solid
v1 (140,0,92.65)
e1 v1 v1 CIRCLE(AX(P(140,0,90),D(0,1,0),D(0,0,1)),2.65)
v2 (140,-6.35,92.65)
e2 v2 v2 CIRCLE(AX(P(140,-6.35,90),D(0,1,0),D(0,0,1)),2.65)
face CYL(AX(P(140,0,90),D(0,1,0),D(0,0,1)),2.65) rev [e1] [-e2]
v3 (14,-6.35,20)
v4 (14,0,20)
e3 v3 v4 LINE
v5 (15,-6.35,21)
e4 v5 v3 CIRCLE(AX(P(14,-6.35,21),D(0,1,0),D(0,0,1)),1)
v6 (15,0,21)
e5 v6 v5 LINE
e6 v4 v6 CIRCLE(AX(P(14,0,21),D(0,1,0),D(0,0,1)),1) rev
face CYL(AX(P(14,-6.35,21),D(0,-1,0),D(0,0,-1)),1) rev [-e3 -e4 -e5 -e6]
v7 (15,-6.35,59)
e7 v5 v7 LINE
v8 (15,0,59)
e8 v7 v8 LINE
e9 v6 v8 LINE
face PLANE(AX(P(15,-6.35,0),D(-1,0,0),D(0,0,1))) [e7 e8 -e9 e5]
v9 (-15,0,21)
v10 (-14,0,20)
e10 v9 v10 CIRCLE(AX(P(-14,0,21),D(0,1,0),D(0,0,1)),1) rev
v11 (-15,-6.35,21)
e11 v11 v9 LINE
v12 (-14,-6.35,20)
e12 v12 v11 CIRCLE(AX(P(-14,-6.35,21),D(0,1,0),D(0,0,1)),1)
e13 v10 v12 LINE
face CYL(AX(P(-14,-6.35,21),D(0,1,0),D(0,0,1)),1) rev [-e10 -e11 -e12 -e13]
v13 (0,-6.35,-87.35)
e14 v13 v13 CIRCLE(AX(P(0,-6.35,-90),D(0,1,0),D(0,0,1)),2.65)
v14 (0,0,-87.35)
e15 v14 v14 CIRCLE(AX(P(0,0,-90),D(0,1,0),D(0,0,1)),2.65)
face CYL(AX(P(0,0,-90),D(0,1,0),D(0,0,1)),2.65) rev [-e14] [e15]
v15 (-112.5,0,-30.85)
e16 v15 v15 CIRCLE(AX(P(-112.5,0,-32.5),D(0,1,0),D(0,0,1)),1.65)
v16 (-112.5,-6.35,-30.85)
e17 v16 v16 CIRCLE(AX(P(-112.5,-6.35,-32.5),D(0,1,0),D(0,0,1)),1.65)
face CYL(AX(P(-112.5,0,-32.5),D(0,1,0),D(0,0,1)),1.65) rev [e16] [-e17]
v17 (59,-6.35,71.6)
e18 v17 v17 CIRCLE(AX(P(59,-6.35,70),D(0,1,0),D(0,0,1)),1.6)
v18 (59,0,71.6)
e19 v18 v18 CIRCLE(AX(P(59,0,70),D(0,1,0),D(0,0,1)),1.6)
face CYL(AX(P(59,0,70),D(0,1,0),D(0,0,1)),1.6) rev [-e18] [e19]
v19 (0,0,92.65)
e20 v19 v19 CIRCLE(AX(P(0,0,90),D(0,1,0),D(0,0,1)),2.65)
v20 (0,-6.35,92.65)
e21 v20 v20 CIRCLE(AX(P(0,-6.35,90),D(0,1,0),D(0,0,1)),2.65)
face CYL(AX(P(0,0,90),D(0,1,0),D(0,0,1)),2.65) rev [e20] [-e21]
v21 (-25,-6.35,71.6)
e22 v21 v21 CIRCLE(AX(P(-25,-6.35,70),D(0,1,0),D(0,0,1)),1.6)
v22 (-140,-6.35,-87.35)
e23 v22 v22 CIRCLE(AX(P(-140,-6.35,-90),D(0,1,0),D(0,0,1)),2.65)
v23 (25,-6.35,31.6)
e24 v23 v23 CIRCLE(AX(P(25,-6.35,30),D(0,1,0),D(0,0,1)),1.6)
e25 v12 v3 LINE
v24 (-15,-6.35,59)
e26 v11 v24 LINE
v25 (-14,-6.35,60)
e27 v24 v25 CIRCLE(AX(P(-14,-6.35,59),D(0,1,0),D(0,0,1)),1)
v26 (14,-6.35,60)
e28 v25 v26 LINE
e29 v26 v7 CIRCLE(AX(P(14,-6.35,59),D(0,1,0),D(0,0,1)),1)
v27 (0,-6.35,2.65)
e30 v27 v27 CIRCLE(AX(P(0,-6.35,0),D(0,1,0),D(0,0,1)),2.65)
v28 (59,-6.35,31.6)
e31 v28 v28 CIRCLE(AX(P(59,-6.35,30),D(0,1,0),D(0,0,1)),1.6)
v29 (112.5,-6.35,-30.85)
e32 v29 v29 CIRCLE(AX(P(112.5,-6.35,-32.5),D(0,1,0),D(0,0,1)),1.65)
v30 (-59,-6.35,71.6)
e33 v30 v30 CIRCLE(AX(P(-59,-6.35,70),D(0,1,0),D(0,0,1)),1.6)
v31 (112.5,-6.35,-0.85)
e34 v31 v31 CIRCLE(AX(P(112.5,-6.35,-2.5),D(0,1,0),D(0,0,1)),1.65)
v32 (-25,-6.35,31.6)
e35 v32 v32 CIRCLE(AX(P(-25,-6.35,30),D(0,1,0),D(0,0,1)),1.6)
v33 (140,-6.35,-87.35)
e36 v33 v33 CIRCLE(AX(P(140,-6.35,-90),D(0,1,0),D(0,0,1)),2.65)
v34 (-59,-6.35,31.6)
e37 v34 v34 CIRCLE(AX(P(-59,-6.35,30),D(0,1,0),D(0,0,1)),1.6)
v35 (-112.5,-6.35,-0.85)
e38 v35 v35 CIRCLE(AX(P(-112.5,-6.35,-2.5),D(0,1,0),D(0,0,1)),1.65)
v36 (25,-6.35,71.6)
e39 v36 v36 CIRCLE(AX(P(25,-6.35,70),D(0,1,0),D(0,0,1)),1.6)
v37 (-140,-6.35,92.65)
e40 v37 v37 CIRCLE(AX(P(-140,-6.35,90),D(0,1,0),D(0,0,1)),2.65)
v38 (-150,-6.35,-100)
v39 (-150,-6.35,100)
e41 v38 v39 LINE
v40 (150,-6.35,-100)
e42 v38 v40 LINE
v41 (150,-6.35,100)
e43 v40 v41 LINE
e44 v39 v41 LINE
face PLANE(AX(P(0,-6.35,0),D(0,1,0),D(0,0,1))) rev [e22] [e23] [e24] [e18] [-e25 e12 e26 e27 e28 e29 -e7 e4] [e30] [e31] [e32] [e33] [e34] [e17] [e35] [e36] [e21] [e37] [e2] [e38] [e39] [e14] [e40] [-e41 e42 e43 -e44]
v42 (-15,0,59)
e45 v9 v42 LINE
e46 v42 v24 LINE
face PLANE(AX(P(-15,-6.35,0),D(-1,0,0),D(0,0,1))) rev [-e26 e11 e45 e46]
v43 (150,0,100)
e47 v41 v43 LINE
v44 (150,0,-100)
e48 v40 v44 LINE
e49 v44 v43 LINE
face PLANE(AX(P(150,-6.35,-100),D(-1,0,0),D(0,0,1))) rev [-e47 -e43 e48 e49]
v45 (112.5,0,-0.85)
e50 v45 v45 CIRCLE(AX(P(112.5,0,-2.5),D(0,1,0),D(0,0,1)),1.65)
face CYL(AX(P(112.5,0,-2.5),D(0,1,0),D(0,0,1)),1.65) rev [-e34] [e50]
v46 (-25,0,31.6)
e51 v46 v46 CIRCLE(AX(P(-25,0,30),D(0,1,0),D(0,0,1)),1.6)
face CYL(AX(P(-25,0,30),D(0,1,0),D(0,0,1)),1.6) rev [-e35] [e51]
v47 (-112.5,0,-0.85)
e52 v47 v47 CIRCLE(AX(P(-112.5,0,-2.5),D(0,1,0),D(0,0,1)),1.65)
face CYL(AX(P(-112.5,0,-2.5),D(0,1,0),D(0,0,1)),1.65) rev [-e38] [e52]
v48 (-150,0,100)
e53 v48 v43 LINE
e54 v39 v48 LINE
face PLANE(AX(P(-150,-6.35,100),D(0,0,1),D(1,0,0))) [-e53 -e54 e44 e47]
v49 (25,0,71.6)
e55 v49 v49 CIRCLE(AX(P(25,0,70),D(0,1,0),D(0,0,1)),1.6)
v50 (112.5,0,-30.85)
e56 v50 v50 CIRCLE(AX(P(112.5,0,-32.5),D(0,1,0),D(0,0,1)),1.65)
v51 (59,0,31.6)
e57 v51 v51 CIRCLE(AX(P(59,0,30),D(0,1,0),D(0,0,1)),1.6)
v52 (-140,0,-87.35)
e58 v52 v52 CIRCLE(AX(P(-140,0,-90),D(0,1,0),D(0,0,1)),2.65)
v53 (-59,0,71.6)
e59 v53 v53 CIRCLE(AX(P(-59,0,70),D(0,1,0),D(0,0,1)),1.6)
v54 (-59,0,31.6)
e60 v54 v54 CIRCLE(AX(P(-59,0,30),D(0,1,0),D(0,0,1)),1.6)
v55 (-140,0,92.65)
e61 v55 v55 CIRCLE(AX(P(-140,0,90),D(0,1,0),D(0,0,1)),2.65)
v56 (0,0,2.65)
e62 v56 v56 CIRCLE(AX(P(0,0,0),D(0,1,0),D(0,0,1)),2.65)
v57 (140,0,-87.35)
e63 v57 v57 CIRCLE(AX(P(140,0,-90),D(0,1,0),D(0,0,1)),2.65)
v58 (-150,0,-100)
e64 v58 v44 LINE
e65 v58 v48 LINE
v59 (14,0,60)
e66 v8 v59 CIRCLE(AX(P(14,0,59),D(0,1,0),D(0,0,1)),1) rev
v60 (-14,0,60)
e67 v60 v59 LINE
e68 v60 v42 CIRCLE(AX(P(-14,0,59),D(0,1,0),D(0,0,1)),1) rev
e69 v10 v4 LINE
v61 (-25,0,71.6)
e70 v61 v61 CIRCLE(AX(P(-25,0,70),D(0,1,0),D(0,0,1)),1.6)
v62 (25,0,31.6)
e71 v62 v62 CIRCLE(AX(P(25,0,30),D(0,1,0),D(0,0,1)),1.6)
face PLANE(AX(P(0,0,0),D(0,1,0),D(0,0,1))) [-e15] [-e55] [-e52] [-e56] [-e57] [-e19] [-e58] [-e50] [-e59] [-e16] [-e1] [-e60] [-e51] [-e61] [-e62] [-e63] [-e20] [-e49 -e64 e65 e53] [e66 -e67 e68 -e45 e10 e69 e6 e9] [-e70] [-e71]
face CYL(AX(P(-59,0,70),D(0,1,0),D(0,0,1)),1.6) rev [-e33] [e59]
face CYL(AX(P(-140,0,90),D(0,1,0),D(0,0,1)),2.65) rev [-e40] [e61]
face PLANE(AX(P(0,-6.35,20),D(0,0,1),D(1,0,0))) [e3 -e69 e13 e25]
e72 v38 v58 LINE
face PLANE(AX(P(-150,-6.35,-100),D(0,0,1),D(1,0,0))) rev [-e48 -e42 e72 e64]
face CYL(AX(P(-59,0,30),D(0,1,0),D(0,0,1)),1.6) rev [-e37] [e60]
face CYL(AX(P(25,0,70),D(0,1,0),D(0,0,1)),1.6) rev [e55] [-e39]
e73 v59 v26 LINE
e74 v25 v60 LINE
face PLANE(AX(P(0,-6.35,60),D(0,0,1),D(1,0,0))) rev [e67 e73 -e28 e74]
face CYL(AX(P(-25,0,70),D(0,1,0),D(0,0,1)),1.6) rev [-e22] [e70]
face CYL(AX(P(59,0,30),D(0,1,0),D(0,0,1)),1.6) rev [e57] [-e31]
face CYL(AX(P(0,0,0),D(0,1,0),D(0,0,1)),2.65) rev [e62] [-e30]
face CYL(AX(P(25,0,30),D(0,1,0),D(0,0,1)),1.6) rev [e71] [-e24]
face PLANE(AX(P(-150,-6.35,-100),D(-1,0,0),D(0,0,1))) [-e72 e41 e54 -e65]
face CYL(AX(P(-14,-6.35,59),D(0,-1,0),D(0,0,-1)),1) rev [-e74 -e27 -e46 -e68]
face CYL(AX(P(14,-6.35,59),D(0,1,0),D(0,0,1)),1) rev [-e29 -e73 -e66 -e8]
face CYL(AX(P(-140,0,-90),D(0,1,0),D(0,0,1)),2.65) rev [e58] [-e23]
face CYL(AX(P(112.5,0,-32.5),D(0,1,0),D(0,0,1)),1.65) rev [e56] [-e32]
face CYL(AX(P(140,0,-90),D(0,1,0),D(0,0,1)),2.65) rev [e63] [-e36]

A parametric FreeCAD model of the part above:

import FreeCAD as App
import Part
import Sketcher
from FreeCAD import Vector


def edges_at(feature, points):
    """Names of the edges that pass closest to the given points."""
    edges = feature.Shape.Edges
    near = lambda p: min(range(len(edges)), key=lambda i: edges[i].distToShape(Part.Vertex(*p))[0])
    return sorted({f"Edge{near(p) + 1}" for p in points})

doc = App.newDocument("Part")
body = doc.addObject("PartDesign::Body", "Body")

# Sketch on XZ plane
sketch1 = body.newObject("Sketcher::SketchObject", "Sketch")
sketch1.AttachmentSupport = (doc.getObject("XZ_Plane"), [""])
sketch1.MapMode = "FlatFace"
sketch1.addGeometry([
    Part.LineSegment(Vector(-150, -100, 0), Vector(-150, 100, 0)),  # 0
    Part.LineSegment(Vector(-150, 100, 0), Vector(150, 100, 0)),  # 1
    Part.LineSegment(Vector(150, 100, 0), Vector(150, -100, 0)),  # 2
    Part.LineSegment(Vector(150, -100, 0), Vector(-150, -100, 0)),  # 3
    Part.LineSegment(Vector(15, 60, 0), Vector(-15, 60, 0)),  # 4
    Part.LineSegment(Vector(-15, 60, 0), Vector(-15, 20, 0)),  # 5
    Part.LineSegment(Vector(-15, 20, 0), Vector(15, 20, 0)),  # 6
    Part.LineSegment(Vector(15, 20, 0), Vector(15, 60, 0)),  # 7
], False)
sketch1.addConstraint([
    Sketcher.Constraint("Coincident", 0, 2, 1, 1),
    Sketcher.Constraint("Coincident", 1, 2, 2, 1),
    Sketcher.Constraint("Coincident", 2, 2, 3, 1),
    Sketcher.Constraint("Coincident", 3, 2, 0, 1),
    Sketcher.Constraint("Coincident", 4, 2, 5, 1),
    Sketcher.Constraint("Coincident", 5, 2, 6, 1),
    Sketcher.Constraint("Coincident", 6, 2, 7, 1),
    Sketcher.Constraint("Coincident", 7, 2, 4, 1),
    Sketcher.Constraint("Vertical", 0),
    Sketcher.Constraint("Horizontal", 1),
    Sketcher.Constraint("Vertical", 2),
    Sketcher.Constraint("Horizontal", 3),
    Sketcher.Constraint("Horizontal", 4),
    Sketcher.Constraint("Vertical", 5),
    Sketcher.Constraint("Horizontal", 6),
    Sketcher.Constraint("Vertical", 7),
    Sketcher.Constraint("Symmetric", 0, 2, 2, 2, -1, 1),
    Sketcher.Constraint("DistanceX", 1, 1, 1, 2, 300.0),
    Sketcher.Constraint("DistanceX", 4, 2, 4, 1, 30.0),
    Sketcher.Constraint("DistanceY", 0, 1, 0, 2, 200.0),
    Sketcher.Constraint("DistanceY", 5, 2, 5, 1, 40.0),
    Sketcher.Constraint("DistanceX", 4, 2, -1, 1, 15.0),
    Sketcher.Constraint("DistanceY", -1, 1, 4, 2, 60.0),
])
pad1 = body.newObject("PartDesign::Pad", "Pad")
pad1.Profile = sketch1
pad1.Length = 6.35

# Sketch on XZ plane
sketch2 = body.newObject("Sketcher::SketchObject", "Sketch001")
sketch2.AttachmentSupport = (doc.getObject("XZ_Plane"), [""])
sketch2.MapMode = "FlatFace"
sketch2.addGeometry([
    Part.Circle(Vector(-112.5, -32.5, 0), Vector(0, 0, 1), 1.6),
    Part.Circle(Vector(-112.5, -2.5, 0), Vector(0, 0, 1), 1.6),
    Part.Circle(Vector(112.5, -32.5, 0), Vector(0, 0, 1), 1.6),
    Part.Circle(Vector(112.5, -2.5, 0), Vector(0, 0, 1), 1.6),
], False)
sketch2.addConstraint([
    Sketcher.Constraint("Equal", 0, 1),
    Sketcher.Constraint("Equal", 1, 2),
    Sketcher.Constraint("Equal", 2, 3),
    Sketcher.Constraint("Symmetric", 0, 3, 2, 3, -2),
    Sketcher.Constraint("Symmetric", 1, 3, 3, 3, -2),
    Sketcher.Constraint("Vertical", 0, 3, 1, 3),
    Sketcher.Constraint("Diameter", 0, 3.3),
    Sketcher.Constraint("DistanceY", 0, 3, 1, 3, 30.0),
    Sketcher.Constraint("DistanceX", 0, 3, 2, 3, 225.0),
    Sketcher.Constraint("DistanceY", 0, 3, -1, 1, 32.5),
])
doc.recompute()
hole = body.newObject("PartDesign::Hole", "Hole")
hole.Profile = sketch2
hole.ThreadType = "None"
hole.Diameter = 3.3
hole.DepthType = "ThroughAll"
hole.Reversed = True

# Sketch on XZ plane
sketch3 = body.newObject("Sketcher::SketchObject", "Sketch002")
sketch3.AttachmentSupport = (doc.getObject("XZ_Plane"), [""])
sketch3.MapMode = "FlatFace"
sketch3.addGeometry([
    Part.Circle(Vector(-59, 30, 0), Vector(0, 0, 1), 1.6),  # 0
    Part.Circle(Vector(-25, 30, 0), Vector(0, 0, 1), 1.6),  # 1
    Part.Circle(Vector(-59, 70, 0), Vector(0, 0, 1), 1.6),  # 2
    Part.Circle(Vector(-25, 70, 0), Vector(0, 0, 1), 1.6),  # 3
    Part.Circle(Vector(25, 30, 0), Vector(0, 0, 1), 1.6),  # 4
    Part.Circle(Vector(59, 30, 0), Vector(0, 0, 1), 1.6),  # 5
    Part.Circle(Vector(25, 70, 0), Vector(0, 0, 1), 1.6),  # 6
    Part.Circle(Vector(59, 70, 0), Vector(0, 0, 1), 1.6),  # 7
], False)
sketch3.addConstraint([
    Sketcher.Constraint("Equal", 0, 1),
    Sketcher.Constraint("Equal", 1, 2),
    Sketcher.Constraint("Equal", 2, 3),
    Sketcher.Constraint("Equal", 3, 4),
    Sketcher.Constraint("Equal", 4, 5),
    Sketcher.Constraint("Equal", 5, 6),
    Sketcher.Constraint("Equal", 6, 7),
    Sketcher.Constraint("Symmetric", 1, 3, 4, 3, -2),
    Sketcher.Constraint("Symmetric", 0, 3, 5, 3, -2),
    Sketcher.Constraint("Symmetric", 3, 3, 6, 3, -2),
    Sketcher.Constraint("Symmetric", 2, 3, 7, 3, -2),
    Sketcher.Constraint("Horizontal", 0, 3, 1, 3),
    Sketcher.Constraint("Horizontal", 2, 3, 3, 3),
    Sketcher.Constraint("Vertical", 0, 3, 2, 3),
    Sketcher.Constraint("Vertical", 1, 3, 3, 3),
    Sketcher.Constraint("Diameter", 0, 3.2),
    Sketcher.Constraint("DistanceX", 0, 3, -1, 1, 59.0),
    Sketcher.Constraint("DistanceY", -1, 1, 0, 3, 30.0),
    Sketcher.Constraint("DistanceX", 1, 3, -1, 1, 25.0),
    Sketcher.Constraint("DistanceY", -1, 1, 2, 3, 70.0),
])
doc.recompute()
hole2 = body.newObject("PartDesign::Hole", "Hole001")
hole2.Profile = sketch3
hole2.ThreadType = "None"
hole2.Diameter = 3.2
hole2.DepthType = "ThroughAll"
hole2.Reversed = True

# Sketch on XZ plane
sketch4 = body.newObject("Sketcher::SketchObject", "Sketch003")
sketch4.AttachmentSupport = (doc.getObject("XZ_Plane"), [""])
sketch4.MapMode = "FlatFace"
sketch4.addGeometry([
    Part.Circle(Vector(-140, -90, 0), Vector(0, 0, 1), 2.6),  # 0
    Part.Circle(Vector(0, -90, 0), Vector(0, 0, 1), 2.6),  # 1
    Part.Circle(Vector(140, -90, 0), Vector(0, 0, 1), 2.6),  # 2
    Part.Circle(Vector(140, 90, 0), Vector(0, 0, 1), 2.6),  # 3
    Part.Circle(Vector(0, 90, 0), Vector(0, 0, 1), 2.6),  # 4
    Part.Circle(Vector(-140, 90, 0), Vector(0, 0, 1), 2.6),  # 5
    Part.Circle(Vector(0, 0, 0), Vector(0, 0, 1), 2.6),  # 6
], False)
sketch4.addConstraint([
    Sketcher.Constraint("Coincident", 6, 3, -1, 1),
    Sketcher.Constraint("Equal", 0, 1),
    Sketcher.Constraint("Equal", 1, 2),
    Sketcher.Constraint("Equal", 2, 3),
    Sketcher.Constraint("Equal", 3, 4),
    Sketcher.Constraint("Equal", 4, 5),
    Sketcher.Constraint("Equal", 5, 6),
    Sketcher.Constraint("Symmetric", 0, 3, 3, 3, -1, 1),
    Sketcher.Constraint("Symmetric", 1, 3, 4, 3, -1, 1),
    Sketcher.Constraint("Symmetric", 2, 3, 5, 3, -1, 1),
    Sketcher.Constraint("Symmetric", 0, 3, 2, 3, -2),
    Sketcher.Constraint("PointOnObject", 1, 3, -2),
    Sketcher.Constraint("Horizontal", 0, 3, 1, 3),
    Sketcher.Constraint("Diameter", 0, 5.3),
    Sketcher.Constraint("DistanceX", 0, 3, -1, 1, 140.0),
    Sketcher.Constraint("DistanceY", 0, 3, -1, 1, 90.0),
])
doc.recompute()
hole3 = body.newObject("PartDesign::Hole", "Hole002")
hole3.Profile = sketch4
hole3.ThreadType = "None"
hole3.Diameter = 5.3
hole3.DepthType = "ThroughAll"
hole3.Reversed = True
doc.recompute()

fillet = body.newObject("PartDesign::Fillet", "Fillet")
fillet.Base = (hole3, edges_at(hole3, [
    (15, -3.175, 20),
    (15, -3.175, 60),
    (-15, -3.175, 60),
    (-15, -3.175, 20),
]))
fillet.Radius = 1

doc.recompute()
